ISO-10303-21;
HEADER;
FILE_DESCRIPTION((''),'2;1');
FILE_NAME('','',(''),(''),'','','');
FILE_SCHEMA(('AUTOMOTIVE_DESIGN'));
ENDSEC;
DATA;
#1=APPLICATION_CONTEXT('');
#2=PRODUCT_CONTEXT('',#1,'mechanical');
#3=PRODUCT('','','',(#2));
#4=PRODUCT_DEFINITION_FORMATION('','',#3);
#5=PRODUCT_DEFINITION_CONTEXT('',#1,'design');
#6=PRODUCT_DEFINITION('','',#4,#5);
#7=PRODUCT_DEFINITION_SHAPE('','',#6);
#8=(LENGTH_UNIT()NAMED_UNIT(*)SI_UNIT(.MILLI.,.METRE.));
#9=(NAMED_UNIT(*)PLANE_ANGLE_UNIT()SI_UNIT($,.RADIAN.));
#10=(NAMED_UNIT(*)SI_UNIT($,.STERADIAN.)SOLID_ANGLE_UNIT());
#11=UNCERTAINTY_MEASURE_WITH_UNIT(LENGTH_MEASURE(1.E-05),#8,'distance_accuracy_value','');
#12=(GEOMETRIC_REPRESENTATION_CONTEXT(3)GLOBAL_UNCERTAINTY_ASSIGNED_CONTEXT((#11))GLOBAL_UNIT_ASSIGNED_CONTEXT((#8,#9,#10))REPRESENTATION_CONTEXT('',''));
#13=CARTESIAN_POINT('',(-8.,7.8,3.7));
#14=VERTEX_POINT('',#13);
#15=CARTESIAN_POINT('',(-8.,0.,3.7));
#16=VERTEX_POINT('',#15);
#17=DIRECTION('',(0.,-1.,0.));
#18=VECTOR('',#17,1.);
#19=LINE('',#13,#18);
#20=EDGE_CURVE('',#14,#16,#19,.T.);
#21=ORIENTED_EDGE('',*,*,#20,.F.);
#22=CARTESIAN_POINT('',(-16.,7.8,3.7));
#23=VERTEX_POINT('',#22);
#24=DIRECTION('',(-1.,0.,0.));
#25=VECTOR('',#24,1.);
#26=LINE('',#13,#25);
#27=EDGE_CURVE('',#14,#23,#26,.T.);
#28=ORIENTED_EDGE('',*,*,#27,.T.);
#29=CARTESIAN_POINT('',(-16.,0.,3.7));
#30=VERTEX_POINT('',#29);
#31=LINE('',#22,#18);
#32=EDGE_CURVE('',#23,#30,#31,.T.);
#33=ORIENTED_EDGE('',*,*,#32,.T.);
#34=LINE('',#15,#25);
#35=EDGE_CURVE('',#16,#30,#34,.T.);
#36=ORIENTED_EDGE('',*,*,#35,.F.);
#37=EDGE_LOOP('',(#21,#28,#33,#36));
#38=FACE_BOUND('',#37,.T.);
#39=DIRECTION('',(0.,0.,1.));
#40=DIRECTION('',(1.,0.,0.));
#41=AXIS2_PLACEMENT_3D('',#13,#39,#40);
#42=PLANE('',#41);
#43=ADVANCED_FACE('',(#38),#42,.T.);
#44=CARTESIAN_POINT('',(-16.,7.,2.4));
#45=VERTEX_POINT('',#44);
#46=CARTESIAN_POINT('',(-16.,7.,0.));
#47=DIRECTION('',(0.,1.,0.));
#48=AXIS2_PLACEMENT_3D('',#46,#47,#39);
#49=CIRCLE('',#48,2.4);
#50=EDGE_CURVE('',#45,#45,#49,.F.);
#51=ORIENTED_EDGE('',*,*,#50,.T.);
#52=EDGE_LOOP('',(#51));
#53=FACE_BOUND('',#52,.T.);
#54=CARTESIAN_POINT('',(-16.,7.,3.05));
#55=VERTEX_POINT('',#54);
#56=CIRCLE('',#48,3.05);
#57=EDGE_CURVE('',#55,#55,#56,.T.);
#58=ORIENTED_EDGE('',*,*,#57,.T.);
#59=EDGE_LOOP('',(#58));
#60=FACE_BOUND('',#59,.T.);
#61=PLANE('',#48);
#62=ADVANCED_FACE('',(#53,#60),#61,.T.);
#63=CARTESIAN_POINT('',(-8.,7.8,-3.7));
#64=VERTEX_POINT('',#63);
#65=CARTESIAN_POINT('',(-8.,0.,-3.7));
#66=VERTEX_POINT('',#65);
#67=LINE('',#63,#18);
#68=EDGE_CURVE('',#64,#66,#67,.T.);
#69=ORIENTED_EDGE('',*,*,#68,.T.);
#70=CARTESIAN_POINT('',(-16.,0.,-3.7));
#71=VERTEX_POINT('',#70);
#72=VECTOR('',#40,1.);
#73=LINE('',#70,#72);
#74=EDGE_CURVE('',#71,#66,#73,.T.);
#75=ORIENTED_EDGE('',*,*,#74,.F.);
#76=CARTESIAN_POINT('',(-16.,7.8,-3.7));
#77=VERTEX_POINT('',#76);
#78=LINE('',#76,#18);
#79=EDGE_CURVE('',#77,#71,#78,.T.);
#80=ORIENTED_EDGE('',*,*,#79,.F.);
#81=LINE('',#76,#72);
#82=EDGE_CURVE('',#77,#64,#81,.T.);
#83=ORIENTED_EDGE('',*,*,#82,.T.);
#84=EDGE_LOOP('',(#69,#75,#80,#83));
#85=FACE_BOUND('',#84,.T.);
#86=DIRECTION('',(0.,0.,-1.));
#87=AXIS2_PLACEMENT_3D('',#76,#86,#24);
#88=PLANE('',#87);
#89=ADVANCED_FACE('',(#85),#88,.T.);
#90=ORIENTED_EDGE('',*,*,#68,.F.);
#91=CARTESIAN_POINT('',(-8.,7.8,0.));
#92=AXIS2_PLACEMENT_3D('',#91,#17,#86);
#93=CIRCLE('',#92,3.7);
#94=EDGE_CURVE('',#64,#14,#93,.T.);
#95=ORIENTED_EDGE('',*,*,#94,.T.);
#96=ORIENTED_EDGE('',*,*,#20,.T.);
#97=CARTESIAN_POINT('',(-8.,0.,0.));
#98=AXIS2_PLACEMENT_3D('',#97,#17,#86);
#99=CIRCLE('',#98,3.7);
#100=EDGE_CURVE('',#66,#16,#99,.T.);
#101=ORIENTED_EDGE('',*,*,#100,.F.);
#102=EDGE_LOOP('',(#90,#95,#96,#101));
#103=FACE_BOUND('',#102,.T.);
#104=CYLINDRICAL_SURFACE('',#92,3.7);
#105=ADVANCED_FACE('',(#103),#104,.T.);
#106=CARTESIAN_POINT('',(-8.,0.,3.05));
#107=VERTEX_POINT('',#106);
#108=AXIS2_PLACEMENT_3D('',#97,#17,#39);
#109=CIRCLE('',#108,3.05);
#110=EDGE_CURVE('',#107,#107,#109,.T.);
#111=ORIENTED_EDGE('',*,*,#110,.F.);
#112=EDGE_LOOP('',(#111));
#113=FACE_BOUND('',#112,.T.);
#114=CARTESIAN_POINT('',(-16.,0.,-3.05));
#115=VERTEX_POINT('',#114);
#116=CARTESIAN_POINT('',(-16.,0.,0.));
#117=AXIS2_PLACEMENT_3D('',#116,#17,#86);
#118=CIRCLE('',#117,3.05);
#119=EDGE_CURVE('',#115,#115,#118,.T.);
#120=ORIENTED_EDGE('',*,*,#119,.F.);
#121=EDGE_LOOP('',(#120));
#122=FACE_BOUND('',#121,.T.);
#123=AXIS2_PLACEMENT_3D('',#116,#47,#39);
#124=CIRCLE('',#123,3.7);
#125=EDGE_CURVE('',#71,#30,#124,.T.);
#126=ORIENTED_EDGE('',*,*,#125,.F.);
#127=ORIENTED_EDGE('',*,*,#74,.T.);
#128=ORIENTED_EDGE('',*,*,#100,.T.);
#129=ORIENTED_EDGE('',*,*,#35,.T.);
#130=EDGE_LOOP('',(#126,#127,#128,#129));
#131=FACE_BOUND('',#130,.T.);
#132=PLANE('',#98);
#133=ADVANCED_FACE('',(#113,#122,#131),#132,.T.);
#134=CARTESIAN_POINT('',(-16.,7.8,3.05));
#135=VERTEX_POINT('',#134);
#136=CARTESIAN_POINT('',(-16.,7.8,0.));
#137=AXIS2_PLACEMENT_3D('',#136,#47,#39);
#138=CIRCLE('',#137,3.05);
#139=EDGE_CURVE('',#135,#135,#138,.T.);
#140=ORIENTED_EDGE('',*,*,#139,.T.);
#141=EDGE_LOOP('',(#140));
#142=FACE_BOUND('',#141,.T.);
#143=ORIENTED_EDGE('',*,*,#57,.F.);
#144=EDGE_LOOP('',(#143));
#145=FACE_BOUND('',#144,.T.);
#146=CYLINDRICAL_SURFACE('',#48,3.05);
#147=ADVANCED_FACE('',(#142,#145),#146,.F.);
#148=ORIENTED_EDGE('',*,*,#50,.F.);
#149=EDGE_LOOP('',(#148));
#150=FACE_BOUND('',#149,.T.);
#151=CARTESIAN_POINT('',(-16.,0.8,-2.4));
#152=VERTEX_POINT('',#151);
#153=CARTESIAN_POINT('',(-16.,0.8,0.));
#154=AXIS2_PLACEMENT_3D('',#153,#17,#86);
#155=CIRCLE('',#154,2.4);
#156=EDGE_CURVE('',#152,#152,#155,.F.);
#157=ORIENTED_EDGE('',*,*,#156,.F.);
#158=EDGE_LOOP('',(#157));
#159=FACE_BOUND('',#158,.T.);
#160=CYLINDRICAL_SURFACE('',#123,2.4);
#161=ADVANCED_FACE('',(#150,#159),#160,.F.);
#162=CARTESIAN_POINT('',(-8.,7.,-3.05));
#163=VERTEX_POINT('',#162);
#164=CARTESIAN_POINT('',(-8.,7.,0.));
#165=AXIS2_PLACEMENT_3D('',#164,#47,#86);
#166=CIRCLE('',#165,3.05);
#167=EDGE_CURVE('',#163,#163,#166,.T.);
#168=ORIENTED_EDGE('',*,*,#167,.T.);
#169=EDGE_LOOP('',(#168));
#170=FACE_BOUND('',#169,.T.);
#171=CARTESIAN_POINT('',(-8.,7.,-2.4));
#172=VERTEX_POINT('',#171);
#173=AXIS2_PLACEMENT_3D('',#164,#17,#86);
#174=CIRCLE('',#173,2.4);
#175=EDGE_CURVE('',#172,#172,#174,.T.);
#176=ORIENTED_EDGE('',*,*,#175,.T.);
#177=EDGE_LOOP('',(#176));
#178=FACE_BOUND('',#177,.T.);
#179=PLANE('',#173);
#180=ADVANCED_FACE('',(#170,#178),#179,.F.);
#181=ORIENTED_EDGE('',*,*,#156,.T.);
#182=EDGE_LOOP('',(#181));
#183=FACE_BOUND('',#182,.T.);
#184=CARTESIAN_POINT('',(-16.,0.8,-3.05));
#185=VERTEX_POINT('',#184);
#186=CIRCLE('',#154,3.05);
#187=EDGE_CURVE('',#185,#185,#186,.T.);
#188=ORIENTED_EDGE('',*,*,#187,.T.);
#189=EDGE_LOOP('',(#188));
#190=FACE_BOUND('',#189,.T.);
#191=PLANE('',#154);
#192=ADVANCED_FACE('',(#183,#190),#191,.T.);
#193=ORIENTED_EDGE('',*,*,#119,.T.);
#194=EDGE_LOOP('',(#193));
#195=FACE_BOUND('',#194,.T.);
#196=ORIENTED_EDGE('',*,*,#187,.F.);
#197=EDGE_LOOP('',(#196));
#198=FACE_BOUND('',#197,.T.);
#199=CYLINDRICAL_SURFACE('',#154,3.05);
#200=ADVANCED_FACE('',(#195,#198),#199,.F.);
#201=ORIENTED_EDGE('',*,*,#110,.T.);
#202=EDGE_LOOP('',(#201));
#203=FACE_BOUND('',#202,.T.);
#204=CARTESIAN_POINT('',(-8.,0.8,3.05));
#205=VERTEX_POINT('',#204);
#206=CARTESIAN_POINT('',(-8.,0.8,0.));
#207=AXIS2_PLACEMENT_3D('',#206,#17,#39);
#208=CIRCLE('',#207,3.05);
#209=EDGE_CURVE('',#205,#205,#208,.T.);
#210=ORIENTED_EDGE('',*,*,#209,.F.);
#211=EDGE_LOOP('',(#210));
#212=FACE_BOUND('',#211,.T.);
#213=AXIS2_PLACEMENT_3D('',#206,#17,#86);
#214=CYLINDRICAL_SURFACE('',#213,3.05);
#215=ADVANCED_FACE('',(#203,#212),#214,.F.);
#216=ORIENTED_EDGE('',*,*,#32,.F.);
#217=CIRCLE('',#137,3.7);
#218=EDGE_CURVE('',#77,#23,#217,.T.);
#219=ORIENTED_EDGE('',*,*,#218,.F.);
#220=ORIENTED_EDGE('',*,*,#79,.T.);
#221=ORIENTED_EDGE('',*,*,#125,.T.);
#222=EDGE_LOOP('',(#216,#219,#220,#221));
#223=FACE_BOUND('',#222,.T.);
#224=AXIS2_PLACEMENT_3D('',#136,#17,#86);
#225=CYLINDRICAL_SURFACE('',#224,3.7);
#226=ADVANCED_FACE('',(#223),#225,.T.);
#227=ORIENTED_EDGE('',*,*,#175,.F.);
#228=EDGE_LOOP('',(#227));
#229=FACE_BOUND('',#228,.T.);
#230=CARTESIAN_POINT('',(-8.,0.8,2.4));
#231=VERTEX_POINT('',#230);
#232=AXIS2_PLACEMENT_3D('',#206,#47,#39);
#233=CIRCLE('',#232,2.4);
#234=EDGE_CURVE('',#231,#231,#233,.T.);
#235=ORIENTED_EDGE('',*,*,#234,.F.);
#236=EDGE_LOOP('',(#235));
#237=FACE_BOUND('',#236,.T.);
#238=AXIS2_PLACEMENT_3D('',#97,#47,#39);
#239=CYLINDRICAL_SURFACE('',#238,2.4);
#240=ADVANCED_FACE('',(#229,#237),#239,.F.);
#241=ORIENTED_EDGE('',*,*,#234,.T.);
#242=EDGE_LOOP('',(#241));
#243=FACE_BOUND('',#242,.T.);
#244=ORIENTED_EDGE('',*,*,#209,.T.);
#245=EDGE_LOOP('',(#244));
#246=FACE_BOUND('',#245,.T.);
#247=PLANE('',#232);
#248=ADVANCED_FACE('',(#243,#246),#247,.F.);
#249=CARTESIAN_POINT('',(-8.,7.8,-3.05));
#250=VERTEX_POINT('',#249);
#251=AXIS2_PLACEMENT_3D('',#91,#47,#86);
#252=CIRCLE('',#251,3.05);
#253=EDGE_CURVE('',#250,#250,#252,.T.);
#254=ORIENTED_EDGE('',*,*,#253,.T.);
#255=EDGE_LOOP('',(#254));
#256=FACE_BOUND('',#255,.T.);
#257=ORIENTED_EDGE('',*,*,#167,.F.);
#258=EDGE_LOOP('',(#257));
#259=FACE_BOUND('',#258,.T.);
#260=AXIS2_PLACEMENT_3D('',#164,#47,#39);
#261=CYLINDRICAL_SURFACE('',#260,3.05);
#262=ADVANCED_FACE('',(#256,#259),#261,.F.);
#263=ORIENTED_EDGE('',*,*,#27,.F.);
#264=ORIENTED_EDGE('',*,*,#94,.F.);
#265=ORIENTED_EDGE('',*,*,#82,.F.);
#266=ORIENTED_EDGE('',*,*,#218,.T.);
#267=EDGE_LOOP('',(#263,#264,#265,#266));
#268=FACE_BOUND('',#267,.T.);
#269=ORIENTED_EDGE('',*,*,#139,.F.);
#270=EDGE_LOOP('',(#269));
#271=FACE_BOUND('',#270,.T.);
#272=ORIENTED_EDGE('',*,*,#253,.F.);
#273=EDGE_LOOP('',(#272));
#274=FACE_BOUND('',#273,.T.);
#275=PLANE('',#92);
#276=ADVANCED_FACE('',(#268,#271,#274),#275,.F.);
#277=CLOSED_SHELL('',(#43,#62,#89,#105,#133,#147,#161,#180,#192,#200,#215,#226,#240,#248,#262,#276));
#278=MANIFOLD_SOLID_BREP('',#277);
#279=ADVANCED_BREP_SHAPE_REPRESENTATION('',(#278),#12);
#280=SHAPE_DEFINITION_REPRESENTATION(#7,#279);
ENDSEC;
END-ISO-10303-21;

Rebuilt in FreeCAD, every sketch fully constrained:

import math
import FreeCAD as App
import Part
import Sketcher

doc = App.newDocument("Part")
params = doc.addObject("Spreadsheet::Sheet", "Params")
for row, (alias, value) in enumerate([
    ("sketch1_radius", "3.7 mm"),
    ("sketch1_width", "8 mm"),
    ("pad1_length", "7.8 mm"),
    ("sketch2_diameter", "4.8 mm"),
    ("pocket1_length", "7.8 mm"),
    ("sketch3_diameter", "6.1 mm"),
    ("pocket2_length", "0.8 mm"),
    ("sketch4_diameter", "6.1 mm"),
    ("pocket3_length", "0.8 mm"),
], start=1):
    params.set(f"A{row}", alias)
    params.set(f"B{row}", "=" + value)
    params.setAlias(f"B{row}", alias)

body = doc.addObject("PartDesign::Body", "Body")

sketch1 = body.newObject("Sketcher::SketchObject", "Sketch")
sketch1.AttachmentSupport = (doc.getObject("XZ_Plane"), [""])
sketch1.MapMode = "FlatFace"
sketch1.addGeometry(Part.LineSegment(App.Vector(-8, -3.7, 0), App.Vector(-16, -3.7, 0)), False)
sketch1.addGeometry(Part.ArcOfCircle(Part.Circle(App.Vector(-16, 0, 0), App.Vector(0, 0, 1), 3.7), math.radians(90), math.radians(270)), False)
sketch1.addGeometry(Part.LineSegment(App.Vector(-16, 3.7, 0), App.Vector(-8, 3.7, 0)), False)
sketch1.addGeometry(Part.ArcOfCircle(Part.Circle(App.Vector(-8, 0, 0), App.Vector(0, 0, 1), 3.7), math.radians(-90), math.radians(90)), False)
sketch1.addConstraint(Sketcher.Constraint("Tangent", 0, 2, 1, 2))
sketch1.addConstraint(Sketcher.Constraint("Tangent", 1, 1, 2, 1))
sketch1.addConstraint(Sketcher.Constraint("Tangent", 2, 2, 3, 2))
sketch1.addConstraint(Sketcher.Constraint("Tangent", 3, 1, 0, 1))
sketch1.addConstraint(Sketcher.Constraint("Horizontal", 0))
sketch1.addConstraint(Sketcher.Constraint("Horizontal", 2))
sketch1.addConstraint(Sketcher.Constraint("PointOnObject", 1, 3, -1))
sketch1.addConstraint(Sketcher.Constraint("Radius", 1, 3.7))
sketch1.addConstraint(Sketcher.Constraint("DistanceX", 0, 2, 0, 1, 8.0))
sketch1.addConstraint(Sketcher.Constraint("DistanceX", 1, 3, -1, 1, 16.0))
sketch1.setExpression("Constraints[7]", "Params.sketch1_radius")
sketch1.setExpression("Constraints[8]", "Params.sketch1_width")
pad1 = body.newObject("PartDesign::Pad", "Pad")
pad1.Profile = sketch1
pad1.setExpression("Length", "Params.pad1_length")
pad1.Reversed = True

sketch2 = body.newObject("Sketcher::SketchObject", "Sketch001")
sketch2.AttachmentSupport = (doc.getObject("XZ_Plane"), [""])
sketch2.MapMode = "FlatFace"
sketch2.AttachmentOffset = App.Placement(App.Vector(0, 0, -7.8), App.Rotation())
sketch2.addGeometry(Part.Circle(App.Vector(-16, 0, 0), App.Vector(0, 0, 1), 2.4), False)
sketch2.addGeometry(Part.Circle(App.Vector(-8, 0, 0), App.Vector(0, 0, 1), 2.4), False)
sketch2.addConstraint(Sketcher.Constraint("Equal", 0, 1))
sketch2.addConstraint(Sketcher.Constraint("PointOnObject", 0, 3, -1))
sketch2.addConstraint(Sketcher.Constraint("PointOnObject", 1, 3, -1))
sketch2.addConstraint(Sketcher.Constraint("Diameter", 0, 4.8))
sketch2.addConstraint(Sketcher.Constraint("DistanceX", 0, 3, -1, 1, 16.0))
sketch2.addConstraint(Sketcher.Constraint("DistanceX", 1, 3, -1, 1, 8.0))
sketch2.setExpression("Constraints[3]", "Params.sketch2_diameter")
pocket1 = body.newObject("PartDesign::Pocket", "Pocket")
pocket1.Profile = sketch2
pocket1.setExpression("Length", "Params.pocket1_length")
pocket1.Reversed = True

sketch3 = body.newObject("Sketcher::SketchObject", "Sketch002")
sketch3.AttachmentSupport = (doc.getObject("XZ_Plane"), [""])
sketch3.MapMode = "FlatFace"
sketch3.AttachmentOffset = App.Placement(App.Vector(0, 0, -7.8), App.Rotation())
sketch3.addGeometry(Part.Circle(App.Vector(-16, 0, 0), App.Vector(0, 0, 1), 3), False)
sketch3.addGeometry(Part.Circle(App.Vector(-8, 0, 0), App.Vector(0, 0, 1), 3), False)
sketch3.addConstraint(Sketcher.Constraint("Equal", 0, 1))
sketch3.addConstraint(Sketcher.Constraint("PointOnObject", 0, 3, -1))
sketch3.addConstraint(Sketcher.Constraint("PointOnObject", 1, 3, -1))
sketch3.addConstraint(Sketcher.Constraint("Diameter", 0, 6.1))
sketch3.addConstraint(Sketcher.Constraint("DistanceX", 0, 3, -1, 1, 16.0))
sketch3.addConstraint(Sketcher.Constraint("DistanceX", 1, 3, -1, 1, 8.0))
sketch3.setExpression("Constraints[3]", "Params.sketch3_diameter")
pocket2 = body.newObject("PartDesign::Pocket", "Pocket001")
pocket2.Profile = sketch3
pocket2.setExpression("Length", "Params.pocket2_length")
pocket2.Reversed = True

sketch4 = body.newObject("Sketcher::SketchObject", "Sketch003")
sketch4.AttachmentSupport = (doc.getObject("XZ_Plane"), [""])
sketch4.MapMode = "FlatFace"
sketch4.addGeometry(Part.Circle(App.Vector(-16, 0, 0), App.Vector(0, 0, 1), 3), False)
sketch4.addGeometry(Part.Circle(App.Vector(-8, 0, 0), App.Vector(0, 0, 1), 3), False)
sketch4.addConstraint(Sketcher.Constraint("Equal", 0, 1))
sketch4.addConstraint(Sketcher.Constraint("PointOnObject", 0, 3, -1))
sketch4.addConstraint(Sketcher.Constraint("PointOnObject", 1, 3, -1))
sketch4.addConstraint(Sketcher.Constraint("Diameter", 0, 6.1))
sketch4.addConstraint(Sketcher.Constraint("DistanceX", 0, 3, -1, 1, 16.0))
sketch4.addConstraint(Sketcher.Constraint("DistanceX", 1, 3, -1, 1, 8.0))
sketch4.setExpression("Constraints[3]", "Params.sketch4_diameter")
pocket3 = body.newObject("PartDesign::Pocket", "Pocket002")
pocket3.Profile = sketch4
pocket3.setExpression("Length", "Params.pocket3_length")

doc.recompute()
